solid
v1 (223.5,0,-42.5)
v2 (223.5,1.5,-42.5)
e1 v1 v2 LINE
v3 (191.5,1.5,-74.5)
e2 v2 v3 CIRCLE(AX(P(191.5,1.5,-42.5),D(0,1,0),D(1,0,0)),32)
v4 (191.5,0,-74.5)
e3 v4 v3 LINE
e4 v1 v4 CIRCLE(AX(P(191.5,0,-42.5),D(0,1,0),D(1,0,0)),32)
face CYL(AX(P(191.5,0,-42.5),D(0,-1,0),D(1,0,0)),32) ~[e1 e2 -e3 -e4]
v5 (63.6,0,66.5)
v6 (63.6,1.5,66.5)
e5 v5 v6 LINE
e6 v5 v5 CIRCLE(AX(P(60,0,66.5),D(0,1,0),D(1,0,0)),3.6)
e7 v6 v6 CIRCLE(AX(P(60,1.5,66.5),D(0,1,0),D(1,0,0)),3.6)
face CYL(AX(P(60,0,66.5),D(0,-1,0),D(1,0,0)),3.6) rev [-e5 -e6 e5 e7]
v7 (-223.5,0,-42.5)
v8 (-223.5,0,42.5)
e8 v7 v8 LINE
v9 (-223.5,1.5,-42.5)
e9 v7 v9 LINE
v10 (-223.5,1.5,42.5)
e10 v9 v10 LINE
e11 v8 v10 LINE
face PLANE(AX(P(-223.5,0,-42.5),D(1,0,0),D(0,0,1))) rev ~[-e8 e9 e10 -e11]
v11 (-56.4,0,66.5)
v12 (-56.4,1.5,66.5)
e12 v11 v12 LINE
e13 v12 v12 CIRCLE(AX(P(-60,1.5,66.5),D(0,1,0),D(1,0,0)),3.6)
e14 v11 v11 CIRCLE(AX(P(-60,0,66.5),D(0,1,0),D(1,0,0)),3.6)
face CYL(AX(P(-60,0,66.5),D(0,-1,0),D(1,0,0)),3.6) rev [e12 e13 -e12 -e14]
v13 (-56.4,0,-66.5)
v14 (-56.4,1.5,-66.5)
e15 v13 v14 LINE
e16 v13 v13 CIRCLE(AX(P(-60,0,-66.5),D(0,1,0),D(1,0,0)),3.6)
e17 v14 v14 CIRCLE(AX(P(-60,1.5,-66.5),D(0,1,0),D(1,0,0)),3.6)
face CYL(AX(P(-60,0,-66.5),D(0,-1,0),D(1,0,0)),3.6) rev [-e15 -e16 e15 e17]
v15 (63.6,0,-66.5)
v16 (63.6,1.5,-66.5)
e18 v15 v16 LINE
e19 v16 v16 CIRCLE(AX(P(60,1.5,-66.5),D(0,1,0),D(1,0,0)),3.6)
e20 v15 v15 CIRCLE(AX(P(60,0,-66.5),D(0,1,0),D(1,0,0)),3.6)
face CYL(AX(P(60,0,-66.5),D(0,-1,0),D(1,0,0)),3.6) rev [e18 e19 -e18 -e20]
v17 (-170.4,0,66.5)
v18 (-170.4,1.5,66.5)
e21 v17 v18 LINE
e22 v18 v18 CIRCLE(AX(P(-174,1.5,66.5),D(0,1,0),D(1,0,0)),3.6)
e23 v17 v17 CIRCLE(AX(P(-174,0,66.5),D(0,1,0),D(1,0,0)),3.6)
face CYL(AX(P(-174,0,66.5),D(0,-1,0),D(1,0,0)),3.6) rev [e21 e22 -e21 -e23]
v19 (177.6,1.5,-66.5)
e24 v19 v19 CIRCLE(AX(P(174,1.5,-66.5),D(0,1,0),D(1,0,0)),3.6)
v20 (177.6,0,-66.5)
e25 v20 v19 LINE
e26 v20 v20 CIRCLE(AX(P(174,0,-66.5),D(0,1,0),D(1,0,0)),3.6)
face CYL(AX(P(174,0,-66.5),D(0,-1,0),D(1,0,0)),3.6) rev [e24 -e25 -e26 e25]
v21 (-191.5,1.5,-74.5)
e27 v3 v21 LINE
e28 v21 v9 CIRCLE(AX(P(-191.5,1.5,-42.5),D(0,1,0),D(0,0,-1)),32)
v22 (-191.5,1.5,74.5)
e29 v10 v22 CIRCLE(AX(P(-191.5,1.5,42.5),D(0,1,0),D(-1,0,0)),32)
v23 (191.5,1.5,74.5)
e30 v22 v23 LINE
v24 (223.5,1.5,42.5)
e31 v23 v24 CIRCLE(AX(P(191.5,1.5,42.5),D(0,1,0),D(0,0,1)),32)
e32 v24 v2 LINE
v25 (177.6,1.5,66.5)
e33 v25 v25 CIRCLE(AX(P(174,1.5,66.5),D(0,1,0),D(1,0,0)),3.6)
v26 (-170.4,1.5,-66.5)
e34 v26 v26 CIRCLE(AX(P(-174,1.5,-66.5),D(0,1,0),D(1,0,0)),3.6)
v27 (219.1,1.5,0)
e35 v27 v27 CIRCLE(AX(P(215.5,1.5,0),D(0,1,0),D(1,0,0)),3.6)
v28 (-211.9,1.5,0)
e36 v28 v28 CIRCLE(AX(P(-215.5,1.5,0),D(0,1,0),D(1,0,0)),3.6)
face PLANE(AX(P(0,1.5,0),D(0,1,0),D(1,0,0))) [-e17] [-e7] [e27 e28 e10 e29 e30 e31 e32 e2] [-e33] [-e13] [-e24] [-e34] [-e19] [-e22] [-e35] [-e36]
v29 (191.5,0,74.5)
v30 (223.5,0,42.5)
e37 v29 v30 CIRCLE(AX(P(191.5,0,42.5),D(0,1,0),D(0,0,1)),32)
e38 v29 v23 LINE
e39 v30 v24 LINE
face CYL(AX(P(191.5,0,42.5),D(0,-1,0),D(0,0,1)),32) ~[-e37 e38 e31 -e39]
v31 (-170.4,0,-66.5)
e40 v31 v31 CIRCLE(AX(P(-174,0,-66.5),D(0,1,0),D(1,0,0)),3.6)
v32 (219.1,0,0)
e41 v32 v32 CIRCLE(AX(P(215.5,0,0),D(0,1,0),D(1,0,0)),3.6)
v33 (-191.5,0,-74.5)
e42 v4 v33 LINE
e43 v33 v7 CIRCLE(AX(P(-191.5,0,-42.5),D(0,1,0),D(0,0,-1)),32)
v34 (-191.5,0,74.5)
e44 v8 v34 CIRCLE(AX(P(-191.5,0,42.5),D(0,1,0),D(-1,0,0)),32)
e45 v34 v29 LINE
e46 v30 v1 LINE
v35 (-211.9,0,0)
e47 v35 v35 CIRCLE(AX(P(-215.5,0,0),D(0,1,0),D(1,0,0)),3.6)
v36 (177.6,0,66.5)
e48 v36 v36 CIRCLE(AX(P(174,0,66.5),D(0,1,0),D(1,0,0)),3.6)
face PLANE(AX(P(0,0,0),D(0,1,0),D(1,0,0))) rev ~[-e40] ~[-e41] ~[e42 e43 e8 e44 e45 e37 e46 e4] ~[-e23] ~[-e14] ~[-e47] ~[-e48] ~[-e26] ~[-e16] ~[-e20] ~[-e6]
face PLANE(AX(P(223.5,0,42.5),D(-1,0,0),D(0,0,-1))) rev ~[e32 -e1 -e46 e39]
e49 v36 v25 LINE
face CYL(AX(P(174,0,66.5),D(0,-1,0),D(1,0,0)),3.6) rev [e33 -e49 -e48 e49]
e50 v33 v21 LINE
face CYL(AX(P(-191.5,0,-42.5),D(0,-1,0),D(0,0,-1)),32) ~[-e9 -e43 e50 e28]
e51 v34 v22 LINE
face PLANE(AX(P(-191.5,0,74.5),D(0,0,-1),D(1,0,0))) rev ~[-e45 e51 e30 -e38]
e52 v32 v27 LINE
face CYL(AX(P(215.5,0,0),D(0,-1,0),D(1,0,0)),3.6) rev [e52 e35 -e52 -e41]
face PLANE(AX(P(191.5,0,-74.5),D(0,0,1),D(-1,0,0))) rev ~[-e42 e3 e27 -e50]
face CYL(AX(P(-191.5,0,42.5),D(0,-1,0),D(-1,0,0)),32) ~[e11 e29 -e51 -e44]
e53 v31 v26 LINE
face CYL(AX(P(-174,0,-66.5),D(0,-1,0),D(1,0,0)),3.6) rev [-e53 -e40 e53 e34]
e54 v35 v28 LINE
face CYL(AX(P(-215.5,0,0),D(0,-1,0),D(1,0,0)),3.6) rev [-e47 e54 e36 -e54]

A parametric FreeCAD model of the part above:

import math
import FreeCAD as App
import Part
import Sketcher

doc = App.newDocument("Part")
body = doc.addObject("PartDesign::Body", "Body")

# Sketch on XZ plane
sketch1 = doc.addObject("Sketcher::SketchObject", "Sketch")
body.addObject(sketch1)
sketch1.AttachmentSupport = (doc.XZ_Plane, [""])
sketch1.MapMode = "FlatFace"
sketch1.addGeometry([
    Part.LineSegment(App.Vector(-223.5, -42.5, 0), App.Vector(-223.5, 42.5, 0)),  # 0
    Part.ArcOfCircle(Part.Circle(App.Vector(-191.5, 42.5, 0), App.Vector(0, 0, 1), 32), math.radians(90), math.radians(180)),  # 1
    Part.LineSegment(App.Vector(-191.5, 74.5, 0), App.Vector(191.5, 74.5, 0)),  # 2
    Part.ArcOfCircle(Part.Circle(App.Vector(191.5, 42.5, 0), App.Vector(0, 0, 1), 32), math.radians(0), math.radians(90)),  # 3
    Part.LineSegment(App.Vector(223.5, 42.5, 0), App.Vector(223.5, -42.5, 0)),  # 4
    Part.ArcOfCircle(Part.Circle(App.Vector(191.5, -42.5, 0), App.Vector(0, 0, 1), 32), math.radians(-90), math.radians(0)),  # 5
    Part.LineSegment(App.Vector(191.5, -74.5, 0), App.Vector(-191.5, -74.5, 0)),  # 6
    Part.ArcOfCircle(Part.Circle(App.Vector(-191.5, -42.5, 0), App.Vector(0, 0, 1), 32), math.radians(180), math.radians(270)),  # 7
    Part.Circle(App.Vector(-174, 66.5, 0), App.Vector(0, 0, 1), 3.6),  # 8
    Part.Circle(App.Vector(-60, 66.5, 0), App.Vector(0, 0, 1), 3.6),  # 9
    Part.Circle(App.Vector(60, 66.5, 0), App.Vector(0, 0, 1), 3.6),  # 10
    Part.Circle(App.Vector(174, 66.5, 0), App.Vector(0, 0, 1), 3.6),  # 11
    Part.Circle(App.Vector(-215.5, 0, 0), App.Vector(0, 0, 1), 3.6),  # 12
    Part.Circle(App.Vector(-174, -66.5, 0), App.Vector(0, 0, 1), 3.6),  # 13
    Part.Circle(App.Vector(-60, -66.5, 0), App.Vector(0, 0, 1), 3.6),  # 14
    Part.Circle(App.Vector(215.5, 0, 0), App.Vector(0, 0, 1), 3.6),  # 15
    Part.Circle(App.Vector(60, -66.5, 0), App.Vector(0, 0, 1), 3.6),  # 16
    Part.Circle(App.Vector(174, -66.5, 0), App.Vector(0, 0, 1), 3.6),  # 17
], False)
sketch1.addConstraint([
    Sketcher.Constraint("Tangent", 0, 2, 1, 2),
    Sketcher.Constraint("Tangent", 1, 1, 2, 1),
    Sketcher.Constraint("Tangent", 2, 2, 3, 2),
    Sketcher.Constraint("Tangent", 3, 1, 4, 1),
    Sketcher.Constraint("Tangent", 4, 2, 5, 2),
    Sketcher.Constraint("Tangent", 5, 1, 6, 1),
    Sketcher.Constraint("Tangent", 6, 2, 7, 2),
    Sketcher.Constraint("Tangent", 7, 1, 0, 1),
    Sketcher.Constraint("Vertical", 0),
    Sketcher.Constraint("Horizontal", 2),
    Sketcher.Constraint("Vertical", 4),
    Sketcher.Constraint("Horizontal", 6),
    Sketcher.Constraint("Equal", 1, 3),
    Sketcher.Constraint("Equal", 3, 5),
    Sketcher.Constraint("Equal", 5, 7),
    Sketcher.Constraint("Equal", 8, 9),
    Sketcher.Constraint("Equal", 9, 10),
    Sketcher.Constraint("Equal", 10, 11),
    Sketcher.Constraint("Equal", 11, 12),
    Sketcher.Constraint("Equal", 12, 13),
    Sketcher.Constraint("Equal", 13, 14),
    Sketcher.Constraint("Equal", 14, 15),
    Sketcher.Constraint("Equal", 15, 16),
    Sketcher.Constraint("Equal", 16, 17),
    Sketcher.Constraint("Symmetric", 1, 3, 5, 3, -1, 1),
    Sketcher.Constraint("Symmetric", 11, 3, 13, 3, -1, 1),
    Sketcher.Constraint("Symmetric", 10, 3, 14, 3, -1, 1),
    Sketcher.Constraint("Symmetric", 12, 3, 15, 3, -1, 1),
    Sketcher.Constraint("Symmetric", 9, 3, 16, 3, -1, 1),
    Sketcher.Constraint("Symmetric", 8, 3, 17, 3, -1, 1),
    Sketcher.Constraint("Symmetric", 9, 3, 10, 3, -2),
    Sketcher.Constraint("Symmetric", 8, 3, 11, 3, -2),
    Sketcher.Constraint("PointOnObject", 12, 3, -1),
    Sketcher.Constraint("Horizontal", 8, 3, 9, 3),
    Sketcher.Constraint("Radius", 1, 32.0),
    Sketcher.Constraint("Diameter", 8, 7.2),
    Sketcher.Constraint("DistanceX", 2, 1, 2, 2, 383.0),
    Sketcher.Constraint("DistanceY", 0, 1, 0, 2, 85.0),
    Sketcher.Constraint("DistanceX", 8, 3, -1, 1, 174.0),
    Sketcher.Constraint("DistanceX", 9, 3, -1, 1, 60.0),
    Sketcher.Constraint("DistanceY", 1, 3, 8, 3, 24.0),
    Sketcher.Constraint("DistanceX", 12, 3, 1, 3, 24.0),
])
pad1 = doc.addObject("PartDesign::Pad", "Pad")
body.addObject(pad1)
pad1.Profile = sketch1
pad1.Length = 1.5
pad1.Reversed = True

doc.recompute()
